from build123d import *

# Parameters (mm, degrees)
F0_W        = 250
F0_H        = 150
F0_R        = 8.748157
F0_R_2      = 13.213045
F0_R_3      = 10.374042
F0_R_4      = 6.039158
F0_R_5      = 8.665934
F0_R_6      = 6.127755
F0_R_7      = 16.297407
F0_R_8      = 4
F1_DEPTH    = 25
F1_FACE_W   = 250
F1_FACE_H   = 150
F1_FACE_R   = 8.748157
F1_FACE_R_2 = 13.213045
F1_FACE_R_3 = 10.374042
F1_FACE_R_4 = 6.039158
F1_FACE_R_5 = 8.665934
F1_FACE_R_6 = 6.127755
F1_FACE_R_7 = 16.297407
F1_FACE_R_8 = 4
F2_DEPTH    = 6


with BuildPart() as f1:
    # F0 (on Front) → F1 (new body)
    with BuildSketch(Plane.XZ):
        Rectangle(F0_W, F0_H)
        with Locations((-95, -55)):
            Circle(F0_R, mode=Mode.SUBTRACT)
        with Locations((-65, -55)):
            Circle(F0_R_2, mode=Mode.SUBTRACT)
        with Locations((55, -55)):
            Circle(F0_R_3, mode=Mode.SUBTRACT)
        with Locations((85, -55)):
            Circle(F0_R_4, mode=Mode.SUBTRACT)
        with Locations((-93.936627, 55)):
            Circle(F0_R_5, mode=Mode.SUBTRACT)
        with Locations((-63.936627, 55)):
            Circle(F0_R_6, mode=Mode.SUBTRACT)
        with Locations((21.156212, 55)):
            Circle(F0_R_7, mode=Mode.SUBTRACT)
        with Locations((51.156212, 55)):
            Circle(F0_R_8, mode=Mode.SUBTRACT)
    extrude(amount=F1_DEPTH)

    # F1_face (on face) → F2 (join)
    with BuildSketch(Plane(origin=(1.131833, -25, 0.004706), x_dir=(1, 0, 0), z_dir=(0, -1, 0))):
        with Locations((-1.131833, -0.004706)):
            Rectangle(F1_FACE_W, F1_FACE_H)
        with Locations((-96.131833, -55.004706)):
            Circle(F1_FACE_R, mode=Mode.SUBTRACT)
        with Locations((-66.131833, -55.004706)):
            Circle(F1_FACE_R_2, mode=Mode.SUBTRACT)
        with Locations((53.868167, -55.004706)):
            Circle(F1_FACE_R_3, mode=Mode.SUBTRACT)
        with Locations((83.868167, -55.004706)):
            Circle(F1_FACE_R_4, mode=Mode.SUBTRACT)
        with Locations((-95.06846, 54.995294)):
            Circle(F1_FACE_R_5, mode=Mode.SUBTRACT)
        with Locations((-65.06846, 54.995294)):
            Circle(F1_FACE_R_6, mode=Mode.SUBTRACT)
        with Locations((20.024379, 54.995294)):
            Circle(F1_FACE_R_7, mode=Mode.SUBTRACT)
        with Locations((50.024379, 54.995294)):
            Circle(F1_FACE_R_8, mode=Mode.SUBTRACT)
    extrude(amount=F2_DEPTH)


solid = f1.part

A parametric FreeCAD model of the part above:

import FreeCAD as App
import Part
import Sketcher

V = App.Vector

doc = App.newDocument("Part")
body = doc.addObject("PartDesign::Body", "Body")

# Sketch on XZ plane
sketch1 = body.newObject("Sketcher::SketchObject", "Sketch")
sketch1.AttachmentSupport = (doc.getObject("XZ_Plane"), [""])
sketch1.MapMode = "FlatFace"
sketch1.addGeometry(Part.LineSegment(V(-125, 75, 0), V(-125, -75, 0)), False)
sketch1.addGeometry(Part.LineSegment(V(-125, -75, 0), V(125, -75, 0)), False)
sketch1.addGeometry(Part.LineSegment(V(125, -75, 0), V(125, 75, 0)), False)
sketch1.addGeometry(Part.LineSegment(V(125, 75, 0), V(-125, 75, 0)), False)
sketch1.addGeometry(Part.Circle(V(-95, -55, 0), V(0, 0, 1), 8.7), False)
sketch1.addGeometry(Part.Circle(V(-65, -55, 0), V(0, 0, 1), 13.2), False)
sketch1.addGeometry(Part.Circle(V(55, -55, 0), V(0, 0, 1), 10.4), False)
sketch1.addGeometry(Part.Circle(V(85, -55, 0), V(0, 0, 1), 6), False)
sketch1.addGeometry(Part.Circle(V(-93.9, 55, 0), V(0, 0, 1), 8.7), False)
sketch1.addGeometry(Part.Circle(V(-63.9, 55, 0), V(0, 0, 1), 6.1), False)
sketch1.addGeometry(Part.Circle(V(21.2, 55, 0), V(0, 0, 1), 16.3), False)
sketch1.addGeometry(Part.Circle(V(51.2, 55, 0), V(0, 0, 1), 4), False)
sketch1.addConstraint(Sketcher.Constraint("Coincident", 0, 2, 1, 1))
sketch1.addConstraint(Sketcher.Constraint("Coincident", 1, 2, 2, 1))
sketch1.addConstraint(Sketcher.Constraint("Coincident", 2, 2, 3, 1))
sketch1.addConstraint(Sketcher.Constraint("Coincident", 3, 2, 0, 1))
sketch1.addConstraint(Sketcher.Constraint("Vertical", 0))
sketch1.addConstraint(Sketcher.Constraint("Horizontal", 1))
sketch1.addConstraint(Sketcher.Constraint("Vertical", 2))
sketch1.addConstraint(Sketcher.Constraint("Horizontal", 3))
sketch1.addConstraint(Sketcher.Constraint("Symmetric", 0, 2, 2, 2, -1, 1))
sketch1.addConstraint(Sketcher.Constraint("Horizontal", 4, 3, 5, 3))
sketch1.addConstraint(Sketcher.Constraint("Horizontal", 5, 3, 6, 3))
sketch1.addConstraint(Sketcher.Constraint("Horizontal", 6, 3, 7, 3))
sketch1.addConstraint(Sketcher.Constraint("Horizontal", 8, 3, 9, 3))
sketch1.addConstraint(Sketcher.Constraint("Horizontal", 9, 3, 10, 3))
sketch1.addConstraint(Sketcher.Constraint("Horizontal", 10, 3, 11, 3))
sketch1.addConstraint(Sketcher.Constraint("Diameter", 11, 8.0))
sketch1.addConstraint(Sketcher.Constraint("DistanceX", 1, 1, 1, 2, 250.0))
sketch1.addConstraint(Sketcher.Constraint("DistanceY", 0, 2, 0, 1, 150.0))
sketch1.addConstraint(Sketcher.Constraint("DistanceX", 4, 3, -1, 1, 95.0))
sketch1.addConstraint(Sketcher.Constraint("DistanceY", 4, 3, -1, 1, 55.0))
sketch1.addConstraint(Sketcher.Constraint("DistanceX", 5, 3, -1, 1, 65.0))
sketch1.addConstraint(Sketcher.Constraint("DistanceX", -1, 1, 6, 3, 55.0))
sketch1.addConstraint(Sketcher.Constraint("DistanceX", -1, 1, 7, 3, 85.0))
sketch1.addConstraint(Sketcher.Constraint("DistanceY", -1, 1, 8, 3, 55.0))
sketch1.addConstraint(Sketcher.Constraint("DistanceX", 8, 3, 9, 3, 30.0))
sketch1.addConstraint(Sketcher.Constraint("DistanceX", 10, 3, 11, 3, 30.0))
sketch1.addConstraint(Sketcher.Constraint("Diameter", 5, 26.42609))
sketch1.addConstraint(Sketcher.Constraint("Diameter", 8, 17.331868))
sketch1.addConstraint(Sketcher.Constraint("Diameter", 9, 12.25551))
sketch1.addConstraint(Sketcher.Constraint("Diameter", 4, 17.496314))
sketch1.addConstraint(Sketcher.Constraint("Diameter", 6, 20.748084))
sketch1.addConstraint(Sketcher.Constraint("Diameter", 7, 12.078316))
sketch1.addConstraint(Sketcher.Constraint("Diameter", 10, 32.594814))
sketch1.addConstraint(Sketcher.Constraint("DistanceX", -1, 1, 10, 3, 21.156212))
sketch1.addConstraint(Sketcher.Constraint("DistanceX", 9, 3, 10, 3, 85.092839))
pad1 = body.newObject("PartDesign::Pad", "Pad")
pad1.Profile = sketch1
pad1.Length = 25

# Sketch on XZ plane
sketch2 = body.newObject("Sketcher::SketchObject", "Sketch001")
sketch2.AttachmentSupport = (doc.getObject("XZ_Plane"), [""])
sketch2.MapMode = "FlatFace"
sketch2.AttachmentOffset = App.Placement(V(0, 0, 25), App.Rotation())
sketch2.addGeometry(Part.LineSegment(V(-125, 75, 0), V(-125, -75, 0)), False)
sketch2.addGeometry(Part.LineSegment(V(-125, -75, 0), V(125, -75, 0)), False)
sketch2.addGeometry(Part.LineSegment(V(125, -75, 0), V(125, 75, 0)), False)
sketch2.addGeometry(Part.LineSegment(V(125, 75, 0), V(-125, 75, 0)), False)
sketch2.addGeometry(Part.Circle(V(-95, -55, 0), V(0, 0, 1), 8.7), False)
sketch2.addGeometry(Part.Circle(V(-65, -55, 0), V(0, 0, 1), 13.2), False)
sketch2.addGeometry(Part.Circle(V(55, -55, 0), V(0, 0, 1), 10.4), False)
sketch2.addGeometry(Part.Circle(V(85, -55, 0), V(0, 0, 1), 6), False)
sketch2.addGeometry(Part.Circle(V(-93.9, 55, 0), V(0, 0, 1), 8.7), False)
sketch2.addGeometry(Part.Circle(V(-63.9, 55, 0), V(0, 0, 1), 6.1), False)
sketch2.addGeometry(Part.Circle(V(21.2, 55, 0), V(0, 0, 1), 16.3), False)
sketch2.addGeometry(Part.Circle(V(51.2, 55, 0), V(0, 0, 1), 4), False)
sketch2.addConstraint(Sketcher.Constraint("Coincident", 0, 2, 1, 1))
sketch2.addConstraint(Sketcher.Constraint("Coincident", 1, 2, 2, 1))
sketch2.addConstraint(Sketcher.Constraint("Coincident", 2, 2, 3, 1))
sketch2.addConstraint(Sketcher.Constraint("Coincident", 3, 2, 0, 1))
sketch2.addConstraint(Sketcher.Constraint("Vertical", 0))
sketch2.addConstraint(Sketcher.Constraint("Horizontal", 1))
sketch2.addConstraint(Sketcher.Constraint("Vertical", 2))
sketch2.addConstraint(Sketcher.Constraint("Horizontal", 3))
sketch2.addConstraint(Sketcher.Constraint("Symmetric", 0, 2, 2, 2, -1, 1))
sketch2.addConstraint(Sketcher.Constraint("Horizontal", 4, 3, 5, 3))
sketch2.addConstraint(Sketcher.Constraint("Horizontal", 5, 3, 6, 3))
sketch2.addConstraint(Sketcher.Constraint("Horizontal", 6, 3, 7, 3))
sketch2.addConstraint(Sketcher.Constraint("Horizontal", 8, 3, 9, 3))
sketch2.addConstraint(Sketcher.Constraint("Horizontal", 9, 3, 10, 3))
sketch2.addConstraint(Sketcher.Constraint("Horizontal", 10, 3, 11, 3))
sketch2.addConstraint(Sketcher.Constraint("Diameter", 11, 8.0))
sketch2.addConstraint(Sketcher.Constraint("DistanceX", 1, 1, 1, 2, 250.0))
sketch2.addConstraint(Sketcher.Constraint("DistanceY", 0, 2, 0, 1, 150.0))
sketch2.addConstraint(Sketcher.Constraint("DistanceX", 4, 3, -1, 1, 95.0))
sketch2.addConstraint(Sketcher.Constraint("DistanceY", 4, 3, -1, 1, 55.0))
sketch2.addConstraint(Sketcher.Constraint("DistanceX", 5, 3, -1, 1, 65.0))
sketch2.addConstraint(Sketcher.Constraint("DistanceX", -1, 1, 6, 3, 55.0))
sketch2.addConstraint(Sketcher.Constraint("DistanceX", -1, 1, 7, 3, 85.0))
sketch2.addConstraint(Sketcher.Constraint("DistanceY", -1, 1, 8, 3, 55.0))
sketch2.addConstraint(Sketcher.Constraint("DistanceX", 8, 3, 9, 3, 30.0))
sketch2.addConstraint(Sketcher.Constraint("DistanceX", 10, 3, 11, 3, 30.0))
sketch2.addConstraint(Sketcher.Constraint("Diameter", 5, 26.42609))
sketch2.addConstraint(Sketcher.Constraint("Diameter", 8, 17.331868))
sketch2.addConstraint(Sketcher.Constraint("Diameter", 9, 12.25551))
sketch2.addConstraint(Sketcher.Constraint("Diameter", 4, 17.496314))
sketch2.addConstraint(Sketcher.Constraint("Diameter", 6, 20.748084))
sketch2.addConstraint(Sketcher.Constraint("Diameter", 7, 12.078316))
sketch2.addConstraint(Sketcher.Constraint("Diameter", 10, 32.594814))
sketch2.addConstraint(Sketcher.Constraint("DistanceX", -1, 1, 10, 3, 21.156212))
sketch2.addConstraint(Sketcher.Constraint("DistanceX", 9, 3, 10, 3, 85.092839))
pad2 = body.newObject("PartDesign::Pad", "Pad001")
pad2.Profile = sketch2
pad2.Length = 6

doc.recompute()
